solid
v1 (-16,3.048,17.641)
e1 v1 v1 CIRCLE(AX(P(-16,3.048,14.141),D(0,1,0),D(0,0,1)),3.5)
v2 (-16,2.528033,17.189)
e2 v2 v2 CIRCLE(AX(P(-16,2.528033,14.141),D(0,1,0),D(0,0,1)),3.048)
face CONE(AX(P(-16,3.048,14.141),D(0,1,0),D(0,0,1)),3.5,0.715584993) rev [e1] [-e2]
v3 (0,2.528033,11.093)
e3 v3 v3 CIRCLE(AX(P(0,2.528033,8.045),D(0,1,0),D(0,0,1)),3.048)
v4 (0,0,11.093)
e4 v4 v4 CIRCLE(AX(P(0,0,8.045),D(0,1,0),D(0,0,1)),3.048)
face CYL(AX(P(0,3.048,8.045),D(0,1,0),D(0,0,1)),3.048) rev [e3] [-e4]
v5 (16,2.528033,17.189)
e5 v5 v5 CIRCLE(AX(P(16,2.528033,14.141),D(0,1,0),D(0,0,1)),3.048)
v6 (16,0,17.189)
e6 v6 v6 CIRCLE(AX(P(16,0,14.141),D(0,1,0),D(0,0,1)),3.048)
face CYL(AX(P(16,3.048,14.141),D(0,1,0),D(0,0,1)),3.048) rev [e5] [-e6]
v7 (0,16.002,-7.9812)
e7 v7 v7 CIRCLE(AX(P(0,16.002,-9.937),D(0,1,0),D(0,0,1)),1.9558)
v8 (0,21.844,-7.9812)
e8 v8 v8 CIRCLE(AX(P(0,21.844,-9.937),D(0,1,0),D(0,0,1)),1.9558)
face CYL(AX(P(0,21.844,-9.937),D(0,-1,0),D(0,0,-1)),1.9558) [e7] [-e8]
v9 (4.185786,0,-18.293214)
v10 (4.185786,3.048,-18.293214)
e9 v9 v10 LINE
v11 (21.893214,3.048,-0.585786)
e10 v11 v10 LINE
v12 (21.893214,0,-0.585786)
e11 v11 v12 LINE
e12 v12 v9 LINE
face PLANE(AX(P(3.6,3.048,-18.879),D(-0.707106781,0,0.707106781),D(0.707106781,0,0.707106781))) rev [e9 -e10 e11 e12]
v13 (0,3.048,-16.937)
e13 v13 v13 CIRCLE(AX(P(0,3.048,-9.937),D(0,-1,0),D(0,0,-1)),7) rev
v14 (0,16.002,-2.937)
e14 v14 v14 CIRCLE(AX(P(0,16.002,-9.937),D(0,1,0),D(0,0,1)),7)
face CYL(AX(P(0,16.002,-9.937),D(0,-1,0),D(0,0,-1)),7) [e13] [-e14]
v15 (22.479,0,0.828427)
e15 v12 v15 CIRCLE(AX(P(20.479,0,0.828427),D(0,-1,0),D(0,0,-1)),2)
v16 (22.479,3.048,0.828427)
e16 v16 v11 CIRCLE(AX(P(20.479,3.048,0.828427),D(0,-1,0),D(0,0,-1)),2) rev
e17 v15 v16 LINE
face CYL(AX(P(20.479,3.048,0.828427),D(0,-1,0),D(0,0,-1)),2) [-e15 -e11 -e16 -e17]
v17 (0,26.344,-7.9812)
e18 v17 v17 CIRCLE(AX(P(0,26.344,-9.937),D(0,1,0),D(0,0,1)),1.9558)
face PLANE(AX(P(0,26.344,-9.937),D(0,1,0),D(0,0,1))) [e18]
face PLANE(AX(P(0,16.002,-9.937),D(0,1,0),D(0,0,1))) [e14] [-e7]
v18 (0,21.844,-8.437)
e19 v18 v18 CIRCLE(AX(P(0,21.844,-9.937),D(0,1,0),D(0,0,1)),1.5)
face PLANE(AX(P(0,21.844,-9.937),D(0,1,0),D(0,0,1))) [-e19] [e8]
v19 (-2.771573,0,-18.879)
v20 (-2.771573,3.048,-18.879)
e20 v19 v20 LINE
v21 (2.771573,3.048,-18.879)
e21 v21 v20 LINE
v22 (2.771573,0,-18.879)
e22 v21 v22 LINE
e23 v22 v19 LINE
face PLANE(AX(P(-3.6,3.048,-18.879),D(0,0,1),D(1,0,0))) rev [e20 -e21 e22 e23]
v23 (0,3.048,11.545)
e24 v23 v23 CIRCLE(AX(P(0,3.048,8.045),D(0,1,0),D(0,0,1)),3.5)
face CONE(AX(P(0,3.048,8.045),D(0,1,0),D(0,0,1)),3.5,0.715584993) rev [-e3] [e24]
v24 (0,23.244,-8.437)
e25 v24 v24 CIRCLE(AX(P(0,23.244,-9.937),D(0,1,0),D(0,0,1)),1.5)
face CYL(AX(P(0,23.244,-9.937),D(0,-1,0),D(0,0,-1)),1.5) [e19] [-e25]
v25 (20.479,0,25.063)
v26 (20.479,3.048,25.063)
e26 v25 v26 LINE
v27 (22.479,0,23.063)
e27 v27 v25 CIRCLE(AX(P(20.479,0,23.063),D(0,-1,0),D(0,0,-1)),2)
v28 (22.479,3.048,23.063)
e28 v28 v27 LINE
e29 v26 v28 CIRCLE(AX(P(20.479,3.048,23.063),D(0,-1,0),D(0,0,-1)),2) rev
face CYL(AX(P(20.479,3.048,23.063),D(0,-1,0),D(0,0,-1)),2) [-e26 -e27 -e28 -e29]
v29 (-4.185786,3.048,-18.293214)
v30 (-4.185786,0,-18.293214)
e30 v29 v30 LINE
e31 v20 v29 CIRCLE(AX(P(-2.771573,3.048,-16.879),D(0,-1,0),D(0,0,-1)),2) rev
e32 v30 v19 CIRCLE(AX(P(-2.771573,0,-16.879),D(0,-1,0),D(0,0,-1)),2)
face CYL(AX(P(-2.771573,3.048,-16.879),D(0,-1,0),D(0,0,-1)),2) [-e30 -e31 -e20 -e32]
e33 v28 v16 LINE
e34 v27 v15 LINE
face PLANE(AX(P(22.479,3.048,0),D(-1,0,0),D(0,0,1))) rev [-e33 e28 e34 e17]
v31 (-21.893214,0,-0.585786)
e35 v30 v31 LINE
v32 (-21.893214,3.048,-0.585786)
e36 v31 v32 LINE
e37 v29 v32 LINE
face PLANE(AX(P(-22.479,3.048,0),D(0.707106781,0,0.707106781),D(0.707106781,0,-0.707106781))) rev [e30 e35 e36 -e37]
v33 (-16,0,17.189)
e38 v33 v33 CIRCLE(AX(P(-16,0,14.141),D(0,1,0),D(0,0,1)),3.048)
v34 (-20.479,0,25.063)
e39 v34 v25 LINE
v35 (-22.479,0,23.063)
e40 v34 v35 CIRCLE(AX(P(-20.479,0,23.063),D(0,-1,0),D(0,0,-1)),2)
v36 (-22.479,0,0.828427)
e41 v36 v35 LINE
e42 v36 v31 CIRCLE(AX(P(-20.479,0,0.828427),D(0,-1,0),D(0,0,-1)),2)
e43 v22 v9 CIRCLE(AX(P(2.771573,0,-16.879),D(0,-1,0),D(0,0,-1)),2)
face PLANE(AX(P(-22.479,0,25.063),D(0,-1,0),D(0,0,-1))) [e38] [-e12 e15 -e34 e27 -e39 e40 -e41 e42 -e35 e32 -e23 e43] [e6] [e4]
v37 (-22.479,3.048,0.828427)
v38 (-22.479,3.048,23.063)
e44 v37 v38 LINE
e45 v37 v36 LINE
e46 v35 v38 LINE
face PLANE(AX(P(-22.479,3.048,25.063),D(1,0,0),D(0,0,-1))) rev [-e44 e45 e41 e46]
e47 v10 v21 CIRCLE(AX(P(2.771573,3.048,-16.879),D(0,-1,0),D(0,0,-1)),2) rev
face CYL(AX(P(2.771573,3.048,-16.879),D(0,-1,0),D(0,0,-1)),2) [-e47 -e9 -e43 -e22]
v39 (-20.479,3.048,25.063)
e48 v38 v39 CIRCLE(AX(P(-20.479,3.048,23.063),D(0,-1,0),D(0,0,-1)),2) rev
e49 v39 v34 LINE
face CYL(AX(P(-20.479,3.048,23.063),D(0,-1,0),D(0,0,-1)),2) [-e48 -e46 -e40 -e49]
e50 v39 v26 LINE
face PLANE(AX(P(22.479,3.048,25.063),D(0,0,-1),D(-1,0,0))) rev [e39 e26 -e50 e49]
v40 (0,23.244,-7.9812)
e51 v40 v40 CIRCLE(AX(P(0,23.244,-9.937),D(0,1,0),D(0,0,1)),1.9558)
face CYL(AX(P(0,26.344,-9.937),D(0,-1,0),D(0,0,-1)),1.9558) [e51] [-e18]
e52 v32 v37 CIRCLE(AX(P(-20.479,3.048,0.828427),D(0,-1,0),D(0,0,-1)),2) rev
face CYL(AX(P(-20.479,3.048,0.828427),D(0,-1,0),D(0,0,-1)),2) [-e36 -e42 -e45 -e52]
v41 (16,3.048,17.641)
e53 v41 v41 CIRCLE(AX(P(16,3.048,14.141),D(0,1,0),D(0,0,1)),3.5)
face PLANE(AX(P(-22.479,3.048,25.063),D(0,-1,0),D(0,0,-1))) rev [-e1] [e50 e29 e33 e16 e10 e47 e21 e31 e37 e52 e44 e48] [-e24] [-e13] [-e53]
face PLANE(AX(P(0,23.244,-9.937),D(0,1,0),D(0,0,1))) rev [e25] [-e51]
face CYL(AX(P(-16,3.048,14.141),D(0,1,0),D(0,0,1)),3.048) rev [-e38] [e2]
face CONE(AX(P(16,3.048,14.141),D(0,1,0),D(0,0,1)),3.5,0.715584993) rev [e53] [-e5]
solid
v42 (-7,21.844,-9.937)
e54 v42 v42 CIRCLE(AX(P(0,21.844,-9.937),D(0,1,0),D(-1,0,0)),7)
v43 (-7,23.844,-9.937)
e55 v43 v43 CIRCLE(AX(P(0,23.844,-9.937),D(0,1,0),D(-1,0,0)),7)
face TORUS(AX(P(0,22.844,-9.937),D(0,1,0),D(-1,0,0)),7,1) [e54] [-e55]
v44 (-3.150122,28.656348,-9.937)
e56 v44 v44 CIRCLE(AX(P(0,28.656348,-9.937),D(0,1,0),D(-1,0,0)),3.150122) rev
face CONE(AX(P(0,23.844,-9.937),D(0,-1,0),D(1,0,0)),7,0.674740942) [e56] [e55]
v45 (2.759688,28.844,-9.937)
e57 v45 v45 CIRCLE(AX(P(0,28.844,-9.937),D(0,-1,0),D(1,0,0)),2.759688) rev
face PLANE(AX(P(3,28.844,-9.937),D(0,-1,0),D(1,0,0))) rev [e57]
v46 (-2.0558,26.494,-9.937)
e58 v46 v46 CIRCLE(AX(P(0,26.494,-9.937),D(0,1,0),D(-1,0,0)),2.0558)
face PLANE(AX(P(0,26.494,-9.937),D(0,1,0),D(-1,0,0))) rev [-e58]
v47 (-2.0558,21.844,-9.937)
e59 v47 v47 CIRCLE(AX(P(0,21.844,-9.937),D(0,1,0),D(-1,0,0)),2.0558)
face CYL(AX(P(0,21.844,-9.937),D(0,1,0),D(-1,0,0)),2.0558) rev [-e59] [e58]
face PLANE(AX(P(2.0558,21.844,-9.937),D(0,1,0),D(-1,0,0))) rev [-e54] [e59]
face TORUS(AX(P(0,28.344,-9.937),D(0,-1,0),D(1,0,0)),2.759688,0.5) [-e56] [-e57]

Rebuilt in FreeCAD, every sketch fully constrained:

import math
import FreeCAD as App
import Part
import Sketcher

V = App.Vector
Q = App.Units.Quantity


def edges_at(feature, points):
    """Names of the edges that pass closest to the given points."""
    edges = feature.Shape.Edges
    near = lambda p: min(range(len(edges)), key=lambda i: edges[i].distToShape(Part.Vertex(*p))[0])
    return sorted({f"Edge{near(p) + 1}" for p in points})

doc = App.newDocument("Part")
body = doc.addObject("PartDesign::Body", "Body")

# Sketch on XZ plane
sketch1 = body.newObject("Sketcher::SketchObject", "Sketch")
sketch1.AttachmentSupport = (doc.getObject("XZ_Plane"), [""])
sketch1.MapMode = "FlatFace"
sketch1.addGeometry([
    Part.LineSegment(V(-22, 0, 0), V(-22, 25, 0)),  # 0
    Part.LineSegment(V(-22, 25, 0), V(22, 25, 0)),  # 1
    Part.LineSegment(V(22, 25, 0), V(22, 0, 0)),  # 2
    Part.LineSegment(V(22, 0, 0), V(4, -19, 0)),  # 3
    Part.LineSegment(V(4, -19, 0), V(-4, -19, 0)),  # 4
    Part.LineSegment(V(-4, -19, 0), V(-22, 0, 0)),  # 5
], False)
sketch1.addConstraint([
    Sketcher.Constraint("Coincident", 0, 2, 1, 1),
    Sketcher.Constraint("Coincident", 1, 2, 2, 1),
    Sketcher.Constraint("Coincident", 2, 2, 3, 1),
    Sketcher.Constraint("Coincident", 3, 2, 4, 1),
    Sketcher.Constraint("Coincident", 4, 2, 5, 1),
    Sketcher.Constraint("Coincident", 5, 2, 0, 1),
    Sketcher.Constraint("Vertical", 0),
    Sketcher.Constraint("Horizontal", 1),
    Sketcher.Constraint("Vertical", 2),
    Sketcher.Constraint("Horizontal", 4),
    Sketcher.Constraint("Symmetric", 2, 2, 5, 2, -1, 1),
    Sketcher.Constraint("PointOnObject", 2, 2, -1),
    Sketcher.Constraint("Perpendicular", 3, 5),
    Sketcher.Constraint("Equal", 3, 5),
    Sketcher.Constraint("DistanceX", 4, 2, 4, 1, Q("7.2 mm")),
    Sketcher.Constraint("DistanceX", 1, 1, 1, 2, Q("44.958 mm")),
    Sketcher.Constraint("DistanceY", 0, 1, 0, 2, Q("25.063 mm")),
])
pad1 = body.newObject("PartDesign::Pad", "Pad")
pad1.Profile = sketch1
pad1.Length = 3.048
pad1.Reversed = True

# Sketch on YZ plane
sketch2 = body.newObject("Sketcher::SketchObject", "Sketch001")
sketch2.AttachmentSupport = (doc.getObject("YZ_Plane"), [""])
sketch2.MapMode = "FlatFace"
sketch2.addGeometry([
    Part.LineSegment(V(0, 8, 0), V(3, 8, 0)),  # 0
    Part.LineSegment(V(3, 8, 0), V(3, 11.5, 0)),  # 1
    Part.LineSegment(V(3, 11.5, 0), V(2.5, 11.1, 0)),  # 2
    Part.LineSegment(V(2.5, 11.1, 0), V(0, 11.1, 0)),  # 3
    Part.LineSegment(V(0, 11.1, 0), V(0, 8, 0)),  # 4
], False)
sketch2.addGeometry(Part.LineSegment(V(3, 8, 0), V(0, 8, 0)), True)  # axis
sketch2.addConstraint([
    Sketcher.Constraint("Coincident", 0, 2, 1, 1),
    Sketcher.Constraint("Coincident", 1, 2, 2, 1),
    Sketcher.Constraint("Coincident", 2, 2, 3, 1),
    Sketcher.Constraint("Coincident", 3, 2, 4, 1),
    Sketcher.Constraint("Coincident", 4, 2, 0, 1),
    Sketcher.Constraint("Horizontal", 0),
    Sketcher.Constraint("Vertical", 1),
    Sketcher.Constraint("Horizontal", 3),
    Sketcher.Constraint("Vertical", 4),
    Sketcher.Constraint("Horizontal", 5),
    Sketcher.Constraint("Coincident", 5, 1, 0, 2),
    Sketcher.Constraint("PointOnObject", 3, 2, -2),
    Sketcher.Constraint("PointOnObject", 5, 2, -2),
    Sketcher.Constraint("Equal", 5, 4),
    Sketcher.Constraint("Angle", 2, Q("-139 deg")),
    Sketcher.Constraint("DistanceY", 1, 1, 1, 2, Q("3.5 mm")),
    Sketcher.Constraint("DistanceX", 0, 1, 0, 2, Q("3.048 mm")),
    Sketcher.Constraint("DistanceY", -1, 1, 0, 2, Q("8.045 mm")),
])
groove = body.newObject("PartDesign::Groove", "Groove")
groove.Profile = sketch2
groove.ReferenceAxis = (sketch2, ["Axis0"])
groove.Angle = 360
doc.recompute()

datumline = body.newObject("PartDesign::Line", "DatumLine")
datumline.Placement = App.Placement(V(0, 0, 0), App.Rotation(V(0, 0, 1), V(0.93447293, 0, 0.356034187)))
linearpattern = body.newObject("PartDesign::LinearPattern", "LinearPattern")
linearpattern.Originals = [groove]
linearpattern.Direction = (datumline, [""])
linearpattern.Mode = "offset"
linearpattern.Offset = 17.121951
linearpattern.Occurrences = 2
body.Tip = linearpattern
doc.recompute()

datumline2 = body.newObject("PartDesign::Line", "DatumLine001")
datumline2.Placement = App.Placement(V(0, 0, 0), App.Rotation(V(0, 0, 1), V(-0.93447293, 0, 0.356034187)))
linearpattern2 = body.newObject("PartDesign::LinearPattern", "LinearPattern001")
linearpattern2.Originals = [groove]
linearpattern2.Direction = (datumline2, [""])
linearpattern2.Mode = "offset"
linearpattern2.Offset = 17.121951
linearpattern2.Occurrences = 2
body.Tip = linearpattern2

# Sketch on XZ plane
sketch3 = body.newObject("Sketcher::SketchObject", "Sketch002")
sketch3.AttachmentSupport = (doc.getObject("XZ_Plane"), [""])
sketch3.MapMode = "FlatFace"
sketch3.AttachmentOffset = App.Placement(V(0, 0, -3.048), App.Rotation())
sketch3.addGeometry(Part.Circle(V(0, -10, 0), V(0, 0, 1), 7), False)
sketch3.addConstraint([
    Sketcher.Constraint("PointOnObject", 0, 3, -2),
    Sketcher.Constraint("Diameter", 0, Q("14 mm")),
    Sketcher.Constraint("DistanceY", 0, 3, -1, 1, Q("9.937 mm")),
])
pad2 = body.newObject("PartDesign::Pad", "Pad001")
pad2.Profile = sketch3
pad2.Length = 12.954
pad2.Reversed = True

# Sketch on XZ plane
sketch4 = body.newObject("Sketcher::SketchObject", "Sketch003")
sketch4.AttachmentSupport = (doc.getObject("XZ_Plane"), [""])
sketch4.MapMode = "FlatFace"
sketch4.AttachmentOffset = App.Placement(V(0, 0, -16.002), App.Rotation())
sketch4.addGeometry(Part.Circle(V(0, -9.9, 0), V(0, 0, 1), 2), False)
sketch4.addConstraint([
    Sketcher.Constraint("PointOnObject", 0, 3, -2),
    Sketcher.Constraint("Diameter", 0, Q("3.9116 mm")),
    Sketcher.Constraint("DistanceY", 0, 3, -1, 1, Q("9.937 mm")),
])
pad3 = body.newObject("PartDesign::Pad", "Pad002")
pad3.Profile = sketch4
pad3.Length = 5.842
pad3.Reversed = True

# Sketch on XZ plane
sketch5 = body.newObject("Sketcher::SketchObject", "Sketch004")
sketch5.AttachmentSupport = (doc.getObject("XZ_Plane"), [""])
sketch5.MapMode = "FlatFace"
sketch5.AttachmentOffset = App.Placement(V(0, 0, -21.844), App.Rotation())
sketch5.addGeometry(Part.Circle(V(0, -9.9, 0), V(0, 0, 1), 1.5), False)
sketch5.addConstraint([
    Sketcher.Constraint("PointOnObject", 0, 3, -2),
    Sketcher.Constraint("Diameter", 0, Q("3 mm")),
    Sketcher.Constraint("DistanceY", 0, 3, -1, 1, Q("9.937 mm")),
])
pad4 = body.newObject("PartDesign::Pad", "Pad003")
pad4.Profile = sketch5
pad4.Length = 1.4
pad4.Reversed = True

# Sketch on XZ plane
sketch6 = body.newObject("Sketcher::SketchObject", "Sketch005")
sketch6.AttachmentSupport = (doc.getObject("XZ_Plane"), [""])
sketch6.MapMode = "FlatFace"
sketch6.AttachmentOffset = App.Placement(V(0, 0, -23.244), App.Rotation())
sketch6.addGeometry(Part.Circle(V(0, -9.9, 0), V(0, 0, 1), 2), False)
sketch6.addConstraint([
    Sketcher.Constraint("PointOnObject", 0, 3, -2),
    Sketcher.Constraint("Diameter", 0, Q("3.9116 mm")),
    Sketcher.Constraint("DistanceY", 0, 3, -1, 1, Q("9.937 mm")),
])
pad5 = body.newObject("PartDesign::Pad", "Pad004")
pad5.Profile = sketch6
pad5.Length = 3.1
pad5.Reversed = True
doc.recompute()

fillet = body.newObject("PartDesign::Fillet", "Fillet")
fillet.Base = (pad5, edges_at(pad5, [
    (-22.479, 1.524, 25.063),
    (-22.479, 1.524, 0),
    (-3.6, 1.524, -18.879),
    (3.6, 1.524, -18.879),
    (22.479, 1.524, 0),
    (22.479, 1.524, 25.063),
]))
fillet.Radius = 2
body2 = doc.addObject("PartDesign::Body", "Body001")

# Sketch on XY plane
sketch7 = body2.newObject("Sketcher::SketchObject", "Sketch006")
sketch7.AttachmentSupport = (doc.getObject("XY_Plane001"), [""])
sketch7.MapMode = "FlatFace"
sketch7.AttachmentOffset = App.Placement(V(0, 0, -9.937), App.Rotation())
sketch7.addGeometry([
    Part.LineSegment(V(7, 23.8, 0), V(3, 28.8, 0)),  # 0
    Part.LineSegment(V(3, 28.8, 0), V(0, 28.8, 0)),  # 1
    Part.LineSegment(V(0, 28.8, 0), V(0, 26.5, 0)),  # 2
    Part.LineSegment(V(0, 26.5, 0), V(2.1, 26.5, 0)),  # 3
    Part.LineSegment(V(2.1, 26.5, 0), V(2.1, 21.8, 0)),  # 4
    Part.LineSegment(V(2.1, 21.8, 0), V(7, 21.8, 0)),  # 5
    Part.ArcOfCircle(Part.Circle(V(7, 22.8, 0), V(0, 0, 1), 1), math.radians(-90), math.radians(90)),  # 6
], False)
sketch7.addConstraint([
    Sketcher.Constraint("Coincident", 0, 2, 1, 1),
    Sketcher.Constraint("Coincident", 1, 2, 2, 1),
    Sketcher.Constraint("Coincident", 2, 2, 3, 1),
    Sketcher.Constraint("Coincident", 3, 2, 4, 1),
    Sketcher.Constraint("Coincident", 4, 2, 5, 1),
    Sketcher.Constraint("Tangent", 5, 2, 6, 1),
    Sketcher.Constraint("Coincident", 6, 2, 0, 1),
    Sketcher.Constraint("Horizontal", 1),
    Sketcher.Constraint("Vertical", 2),
    Sketcher.Constraint("Horizontal", 3),
    Sketcher.Constraint("Vertical", 4),
    Sketcher.Constraint("Horizontal", 5),
    Sketcher.Constraint("PointOnObject", 1, 2, -2),
    Sketcher.Constraint("Vertical", 5, 2, 6, 2),
    Sketcher.Constraint("Radius", 6, Q("1 mm")),
    Sketcher.Constraint("DistanceX", 1, 2, 1, 1, Q("3 mm")),
    Sketcher.Constraint("DistanceX", -1, 1, 6, 3, Q("7 mm")),
    Sketcher.Constraint("DistanceY", 6, 3, 0, 2, Q("6 mm")),
    Sketcher.Constraint("DistanceY", 2, 2, 2, 1, Q("2.35 mm")),
    Sketcher.Constraint("DistanceX", 3, 1, 3, 2, Q("2.0558 mm")),
    Sketcher.Constraint("DistanceY", -1, 1, 6, 3, Q("22.844 mm")),
])
revolution = body2.newObject("PartDesign::Revolution", "Revolution")
revolution.Profile = sketch7
revolution.ReferenceAxis = (sketch7, ["V_Axis"])
revolution.Angle = 360
doc.recompute()

fillet2 = body2.newObject("PartDesign::Fillet", "Fillet001")
fillet2.Base = (revolution, edges_at(revolution, [(-3, 28.844, -9.937)]))
fillet2.Radius = 0.5

doc.recompute()
